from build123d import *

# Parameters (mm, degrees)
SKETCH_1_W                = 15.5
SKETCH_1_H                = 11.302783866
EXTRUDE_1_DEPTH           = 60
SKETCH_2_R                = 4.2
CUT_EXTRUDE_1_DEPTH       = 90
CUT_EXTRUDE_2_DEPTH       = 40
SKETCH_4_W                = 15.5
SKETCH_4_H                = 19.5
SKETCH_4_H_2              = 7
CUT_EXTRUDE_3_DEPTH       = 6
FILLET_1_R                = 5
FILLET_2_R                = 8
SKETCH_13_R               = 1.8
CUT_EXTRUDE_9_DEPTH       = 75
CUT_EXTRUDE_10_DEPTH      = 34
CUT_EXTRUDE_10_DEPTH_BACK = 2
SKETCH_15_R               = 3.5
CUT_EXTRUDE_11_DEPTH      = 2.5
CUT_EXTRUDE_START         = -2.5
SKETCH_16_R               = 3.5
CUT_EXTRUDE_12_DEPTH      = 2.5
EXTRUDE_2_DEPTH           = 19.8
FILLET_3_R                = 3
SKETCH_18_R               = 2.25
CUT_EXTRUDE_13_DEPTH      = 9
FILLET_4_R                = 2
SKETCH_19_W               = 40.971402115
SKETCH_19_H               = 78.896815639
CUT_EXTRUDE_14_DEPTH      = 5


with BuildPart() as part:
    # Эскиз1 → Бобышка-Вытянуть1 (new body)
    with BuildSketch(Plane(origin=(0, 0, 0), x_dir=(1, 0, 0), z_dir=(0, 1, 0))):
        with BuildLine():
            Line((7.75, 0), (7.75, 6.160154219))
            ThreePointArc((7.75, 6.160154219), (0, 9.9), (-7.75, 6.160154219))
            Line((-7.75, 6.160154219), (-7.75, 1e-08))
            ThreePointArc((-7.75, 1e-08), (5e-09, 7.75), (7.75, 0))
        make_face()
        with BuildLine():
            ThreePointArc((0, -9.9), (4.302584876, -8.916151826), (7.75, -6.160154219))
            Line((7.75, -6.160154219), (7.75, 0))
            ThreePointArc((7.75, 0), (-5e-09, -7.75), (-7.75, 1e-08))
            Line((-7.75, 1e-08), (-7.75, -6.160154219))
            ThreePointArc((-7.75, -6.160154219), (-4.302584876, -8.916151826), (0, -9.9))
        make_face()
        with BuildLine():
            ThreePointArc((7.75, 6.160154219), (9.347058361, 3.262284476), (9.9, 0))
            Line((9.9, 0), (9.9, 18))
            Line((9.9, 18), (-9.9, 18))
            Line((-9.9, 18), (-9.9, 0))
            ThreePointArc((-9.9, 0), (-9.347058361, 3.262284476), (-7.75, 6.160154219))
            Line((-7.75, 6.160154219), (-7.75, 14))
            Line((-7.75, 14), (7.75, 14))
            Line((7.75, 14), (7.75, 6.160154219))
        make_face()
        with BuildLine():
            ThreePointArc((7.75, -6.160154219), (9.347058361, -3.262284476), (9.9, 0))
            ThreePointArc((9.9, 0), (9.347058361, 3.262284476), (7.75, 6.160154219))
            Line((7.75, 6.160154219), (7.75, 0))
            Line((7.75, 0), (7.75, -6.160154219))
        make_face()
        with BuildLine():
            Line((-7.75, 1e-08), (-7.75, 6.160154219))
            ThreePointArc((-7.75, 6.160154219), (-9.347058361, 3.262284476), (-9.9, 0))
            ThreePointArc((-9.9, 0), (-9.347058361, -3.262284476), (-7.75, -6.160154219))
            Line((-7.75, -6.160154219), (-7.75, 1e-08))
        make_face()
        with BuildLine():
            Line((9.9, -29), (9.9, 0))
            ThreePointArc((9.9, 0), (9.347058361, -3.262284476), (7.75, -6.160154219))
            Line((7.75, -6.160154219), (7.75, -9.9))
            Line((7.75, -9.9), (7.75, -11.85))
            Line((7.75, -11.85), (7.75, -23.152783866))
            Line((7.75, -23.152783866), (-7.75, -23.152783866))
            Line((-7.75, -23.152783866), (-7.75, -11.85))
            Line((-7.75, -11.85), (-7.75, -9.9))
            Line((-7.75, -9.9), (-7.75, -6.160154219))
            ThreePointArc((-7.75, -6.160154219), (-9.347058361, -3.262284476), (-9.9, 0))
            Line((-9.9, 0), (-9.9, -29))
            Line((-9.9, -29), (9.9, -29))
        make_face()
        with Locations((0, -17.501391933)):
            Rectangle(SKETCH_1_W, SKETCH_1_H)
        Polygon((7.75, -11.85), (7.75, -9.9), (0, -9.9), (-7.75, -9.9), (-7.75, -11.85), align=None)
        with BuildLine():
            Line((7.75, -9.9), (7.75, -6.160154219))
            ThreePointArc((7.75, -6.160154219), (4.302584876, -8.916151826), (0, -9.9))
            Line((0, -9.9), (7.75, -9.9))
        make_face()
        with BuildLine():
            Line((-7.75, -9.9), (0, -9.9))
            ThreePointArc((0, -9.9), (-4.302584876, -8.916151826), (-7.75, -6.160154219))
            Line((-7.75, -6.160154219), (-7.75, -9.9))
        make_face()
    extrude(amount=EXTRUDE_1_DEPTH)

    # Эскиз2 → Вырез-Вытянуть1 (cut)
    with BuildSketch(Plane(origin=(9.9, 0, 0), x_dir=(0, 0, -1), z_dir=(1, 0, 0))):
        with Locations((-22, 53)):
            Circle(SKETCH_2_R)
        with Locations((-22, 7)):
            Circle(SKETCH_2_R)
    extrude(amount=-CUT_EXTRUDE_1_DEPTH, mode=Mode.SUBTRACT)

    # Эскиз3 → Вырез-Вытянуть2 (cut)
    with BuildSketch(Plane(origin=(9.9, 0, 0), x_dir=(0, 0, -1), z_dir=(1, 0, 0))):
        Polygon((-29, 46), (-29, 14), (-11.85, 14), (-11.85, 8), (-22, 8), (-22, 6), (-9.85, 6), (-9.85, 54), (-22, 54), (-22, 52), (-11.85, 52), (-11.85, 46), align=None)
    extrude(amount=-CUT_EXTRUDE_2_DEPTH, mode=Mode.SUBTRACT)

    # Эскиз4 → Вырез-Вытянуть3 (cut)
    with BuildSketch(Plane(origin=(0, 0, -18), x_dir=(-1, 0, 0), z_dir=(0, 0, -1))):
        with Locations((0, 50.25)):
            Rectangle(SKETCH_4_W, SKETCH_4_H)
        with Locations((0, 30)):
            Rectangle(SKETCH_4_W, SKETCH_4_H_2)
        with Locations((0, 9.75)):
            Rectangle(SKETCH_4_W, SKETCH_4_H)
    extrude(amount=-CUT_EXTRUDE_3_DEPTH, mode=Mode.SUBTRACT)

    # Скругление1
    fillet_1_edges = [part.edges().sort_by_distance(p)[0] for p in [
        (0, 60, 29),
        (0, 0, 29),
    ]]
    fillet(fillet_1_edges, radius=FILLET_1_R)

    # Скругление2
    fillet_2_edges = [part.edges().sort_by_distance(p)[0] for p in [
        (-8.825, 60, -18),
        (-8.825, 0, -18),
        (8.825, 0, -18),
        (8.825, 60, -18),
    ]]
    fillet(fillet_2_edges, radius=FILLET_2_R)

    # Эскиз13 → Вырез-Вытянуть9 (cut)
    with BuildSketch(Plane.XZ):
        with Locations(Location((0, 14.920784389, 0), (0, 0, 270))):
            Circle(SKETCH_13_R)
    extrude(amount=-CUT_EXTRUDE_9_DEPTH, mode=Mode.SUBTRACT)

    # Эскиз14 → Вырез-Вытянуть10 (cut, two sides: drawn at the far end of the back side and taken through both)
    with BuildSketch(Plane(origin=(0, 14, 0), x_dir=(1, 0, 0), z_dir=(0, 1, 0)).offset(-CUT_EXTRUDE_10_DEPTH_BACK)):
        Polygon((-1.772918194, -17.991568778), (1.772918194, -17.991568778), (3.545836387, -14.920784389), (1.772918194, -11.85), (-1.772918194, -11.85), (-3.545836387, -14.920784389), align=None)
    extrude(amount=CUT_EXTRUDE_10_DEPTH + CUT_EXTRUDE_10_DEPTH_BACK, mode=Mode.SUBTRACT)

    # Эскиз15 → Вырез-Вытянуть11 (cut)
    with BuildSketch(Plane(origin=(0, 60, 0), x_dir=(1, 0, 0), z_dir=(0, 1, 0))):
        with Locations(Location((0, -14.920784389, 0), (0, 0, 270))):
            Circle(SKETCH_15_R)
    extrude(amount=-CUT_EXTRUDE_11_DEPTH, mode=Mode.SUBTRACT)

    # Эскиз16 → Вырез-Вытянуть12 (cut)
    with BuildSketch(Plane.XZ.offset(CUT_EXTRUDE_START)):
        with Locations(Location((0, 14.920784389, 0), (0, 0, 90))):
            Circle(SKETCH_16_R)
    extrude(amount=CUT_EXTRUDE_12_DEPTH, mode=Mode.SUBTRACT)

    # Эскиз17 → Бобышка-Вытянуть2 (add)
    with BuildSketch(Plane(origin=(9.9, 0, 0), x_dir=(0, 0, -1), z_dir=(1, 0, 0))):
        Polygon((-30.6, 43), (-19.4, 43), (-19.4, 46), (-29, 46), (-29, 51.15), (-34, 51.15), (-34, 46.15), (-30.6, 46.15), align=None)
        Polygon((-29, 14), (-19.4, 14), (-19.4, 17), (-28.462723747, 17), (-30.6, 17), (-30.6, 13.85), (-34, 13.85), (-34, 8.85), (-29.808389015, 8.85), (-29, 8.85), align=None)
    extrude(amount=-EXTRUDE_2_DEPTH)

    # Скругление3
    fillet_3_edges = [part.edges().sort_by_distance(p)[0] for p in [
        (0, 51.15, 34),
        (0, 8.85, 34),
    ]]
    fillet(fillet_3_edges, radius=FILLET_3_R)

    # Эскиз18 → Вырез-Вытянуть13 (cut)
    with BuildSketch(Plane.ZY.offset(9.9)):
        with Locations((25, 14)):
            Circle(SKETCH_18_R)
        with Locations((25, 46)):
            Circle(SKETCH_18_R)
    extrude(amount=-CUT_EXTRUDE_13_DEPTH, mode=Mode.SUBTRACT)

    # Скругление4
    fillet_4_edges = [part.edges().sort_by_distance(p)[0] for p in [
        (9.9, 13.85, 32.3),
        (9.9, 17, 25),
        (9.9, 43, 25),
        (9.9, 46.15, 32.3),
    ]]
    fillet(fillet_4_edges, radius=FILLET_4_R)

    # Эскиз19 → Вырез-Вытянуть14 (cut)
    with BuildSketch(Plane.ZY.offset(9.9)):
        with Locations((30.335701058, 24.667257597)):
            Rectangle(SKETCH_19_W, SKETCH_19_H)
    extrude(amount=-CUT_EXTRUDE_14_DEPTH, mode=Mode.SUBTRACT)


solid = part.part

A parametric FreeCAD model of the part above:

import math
import FreeCAD as App
import Part
import Sketcher
from FreeCAD import Vector
Q = App.Units.Quantity


def edges_at(feature, points):
    """Names of the edges that pass closest to the given points."""
    edges = feature.Shape.Edges
    near = lambda p: min(range(len(edges)), key=lambda i: edges[i].distToShape(Part.Vertex(*p))[0])
    return sorted({f"Edge{near(p) + 1}" for p in points})


def add_polygon(sketch, points):
    """Adds a closed chain of lines whose ends are joined by coincident constraints."""
    first, n = sketch.GeometryCount, len(points)
    for a, b in zip(points, points[1:] + points[:1]):
        sketch.addGeometry(Part.LineSegment(App.Vector(*a, 0), App.Vector(*b, 0)), False)
    for i in range(n):
        sketch.addConstraint(Sketcher.Constraint("Coincident", first + i, 2, first + (i + 1) % n, 1))

doc = App.newDocument("Part")
body = doc.addObject("PartDesign::Body", "Body")

sketch1 = body.newObject("Sketcher::SketchObject", "Sketch")
sketch1.AttachmentSupport = (doc.getObject("XZ_Plane"), [""])
sketch1.MapMode = "FlatFace"
add_polygon(sketch1, [(10, -18), (-10, -18), (-10, 29), (10, 29)])
sketch1.addGeometry(Part.Circle(Vector(0, 0, 0), Vector(0, 0, 1), 8), False)
sketch1.addGeometry(Part.LineSegment(Vector(8, -14, 0), Vector(8, -6, 0)), False)
sketch1.addGeometry(Part.ArcOfCircle(Part.Circle(Vector(0, 0, 0), Vector(0, 0, 1), 10), math.radians(-142), math.radians(-38)), False)
sketch1.addGeometry(Part.LineSegment(Vector(-8, -6, 0), Vector(-8, -14, 0)), False)
sketch1.addGeometry(Part.LineSegment(Vector(-8, -14, 0), Vector(8, -14, 0)), False)
sketch1.addConstraint(Sketcher.Constraint("Coincident", 5, 2, 6, 2))
sketch1.addConstraint(Sketcher.Constraint("Coincident", 6, 1, 7, 1))
sketch1.addConstraint(Sketcher.Constraint("Coincident", 7, 2, 8, 1))
sketch1.addConstraint(Sketcher.Constraint("Coincident", 8, 2, 5, 1))
sketch1.addConstraint(Sketcher.Constraint("Horizontal", 0))
sketch1.addConstraint(Sketcher.Constraint("Vertical", 1))
sketch1.addConstraint(Sketcher.Constraint("Horizontal", 2))
sketch1.addConstraint(Sketcher.Constraint("Vertical", 3))
sketch1.addConstraint(Sketcher.Constraint("Vertical", 5))
sketch1.addConstraint(Sketcher.Constraint("Vertical", 7))
sketch1.addConstraint(Sketcher.Constraint("Horizontal", 8))
sketch1.addConstraint(Sketcher.Constraint("Coincident", 4, 3, -1, 1))
sketch1.addConstraint(Sketcher.Constraint("Coincident", 6, 3, -1, 1))
sketch1.addConstraint(Sketcher.Constraint("Horizontal", 5, 2, 6, 1))
sketch1.addConstraint(Sketcher.Constraint("Diameter", 4, Q("15.5 mm")))
sketch1.addConstraint(Sketcher.Constraint("Radius", 6, Q("9.9 mm")))
sketch1.addConstraint(Sketcher.Constraint("DistanceY", 1, 1, 1, 2, Q("47 mm")))
sketch1.addConstraint(Sketcher.Constraint("DistanceX", 0, 2, 0, 1, Q("19.8 mm")))
sketch1.addConstraint(Sketcher.Constraint("DistanceX", 8, 1, 8, 2, Q("15.5 mm")))
sketch1.addConstraint(Sketcher.Constraint("DistanceY", 0, 2, -1, 1, Q("18 mm")))
sketch1.addConstraint(Sketcher.Constraint("DistanceY", 7, 2, -1, 1, Q("14 mm")))
sketch1.addConstraint(Sketcher.Constraint("DistanceX", 0, 2, -1, 1, Q("9.9 mm")))
pad1 = body.newObject("PartDesign::Pad", "Pad")
pad1.Profile = sketch1
pad1.Length = 60
pad1.Reversed = True

sketch2 = body.newObject("Sketcher::SketchObject", "Sketch001")
sketch2.AttachmentSupport = (doc.getObject("YZ_Plane"), [""])
sketch2.MapMode = "FlatFace"
sketch2.AttachmentOffset = App.Placement(Vector(0, 0, 9.9), App.Rotation())
sketch2.addGeometry(Part.Circle(Vector(53, 22, 0), Vector(0, 0, 1), 4.2), False)
sketch2.addGeometry(Part.Circle(Vector(7, 22, 0), Vector(0, 0, 1), 4.2), False)
sketch2.addConstraint(Sketcher.Constraint("Equal", 0, 1))
sketch2.addConstraint(Sketcher.Constraint("Horizontal", 0, 3, 1, 3))
sketch2.addConstraint(Sketcher.Constraint("Diameter", 0, Q("8.4 mm")))
sketch2.addConstraint(Sketcher.Constraint("DistanceX", -1, 1, 0, 3, Q("53 mm")))
sketch2.addConstraint(Sketcher.Constraint("DistanceY", -1, 1, 0, 3, Q("22 mm")))
sketch2.addConstraint(Sketcher.Constraint("DistanceX", -1, 1, 1, 3, Q("7 mm")))
pocket1 = body.newObject("PartDesign::Pocket", "Pocket")
pocket1.Profile = sketch2
pocket1.Length = 90

sketch3 = body.newObject("Sketcher::SketchObject", "Sketch002")
sketch3.AttachmentSupport = (doc.getObject("YZ_Plane"), [""])
sketch3.MapMode = "FlatFace"
sketch3.AttachmentOffset = App.Placement(Vector(0, 0, 9.9), App.Rotation())
add_polygon(sketch3, [(46, 29), (14, 29), (14, 11.8), (8, 11.8), (8, 22), (6, 22), (6, 9.8), (54, 9.8), (54, 22), (52, 22), (52, 11.8), (46, 11.8)])
sketch3.addConstraint(Sketcher.Constraint("Horizontal", 0))
sketch3.addConstraint(Sketcher.Constraint("Vertical", 1))
sketch3.addConstraint(Sketcher.Constraint("Horizontal", 2))
sketch3.addConstraint(Sketcher.Constraint("Vertical", 3))
sketch3.addConstraint(Sketcher.Constraint("Horizontal", 4))
sketch3.addConstraint(Sketcher.Constraint("Vertical", 5))
sketch3.addConstraint(Sketcher.Constraint("Horizontal", 6))
sketch3.addConstraint(Sketcher.Constraint("Vertical", 7))
sketch3.addConstraint(Sketcher.Constraint("Horizontal", 8))
sketch3.addConstraint(Sketcher.Constraint("Vertical", 9))
sketch3.addConstraint(Sketcher.Constraint("Horizontal", 10))
sketch3.addConstraint(Sketcher.Constraint("Vertical", 11))
sketch3.addConstraint(Sketcher.Constraint("Horizontal", 4, 2, 7, 2))
sketch3.addConstraint(Sketcher.Constraint("Horizontal", 2, 2, 9, 2))
sketch3.addConstraint(Sketcher.Constraint("Equal", 4, 8))
sketch3.addConstraint(Sketcher.Constraint("Equal", 2, 10))
sketch3.addConstraint(Sketcher.Constraint("DistanceX", 0, 2, 0, 1, Q("32 mm")))
sketch3.addConstraint(Sketcher.Constraint("DistanceX", 2, 2, 2, 1, Q("6 mm")))
sketch3.addConstraint(Sketcher.Constraint("DistanceX", 4, 2, 4, 1, Q("2 mm")))
sketch3.addConstraint(Sketcher.Constraint("DistanceX", -1, 1, 0, 2, Q("14 mm")))
sketch3.addConstraint(Sketcher.Constraint("DistanceY", -1, 1, 0, 2, Q("29 mm")))
sketch3.addConstraint(Sketcher.Constraint("DistanceY", -1, 1, 3, 2, Q("22 mm")))
sketch3.addConstraint(Sketcher.Constraint("DistanceY", 5, 2, 2, 2, Q("2 mm")))
sketch3.addConstraint(Sketcher.Constraint("DistanceY", 1, 2, 1, 1, Q("17.15 mm")))
pocket2 = body.newObject("PartDesign::Pocket", "Pocket001")
pocket2.Profile = sketch3
pocket2.Length = 40

sketch4 = body.newObject("Sketcher::SketchObject", "Sketch003")
sketch4.AttachmentSupport = (doc.getObject("XY_Plane"), [""])
sketch4.MapMode = "FlatFace"
sketch4.AttachmentOffset = App.Placement(Vector(0, 0, -18), App.Rotation())
add_polygon(sketch4, [(8, 60), (8, 40), (-8, 40), (-8, 60)])
add_polygon(sketch4, [(8, 34), (8, 26), (-8, 26), (-8, 34)])
add_polygon(sketch4, [(8, 20), (8, 0), (-8, 0), (-8, 20)])
sketch4.addConstraint(Sketcher.Constraint("Vertical", 0))
sketch4.addConstraint(Sketcher.Constraint("Horizontal", 1))
sketch4.addConstraint(Sketcher.Constraint("Vertical", 2))
sketch4.addConstraint(Sketcher.Constraint("Horizontal", 3))
sketch4.addConstraint(Sketcher.Constraint("Vertical", 4))
sketch4.addConstraint(Sketcher.Constraint("Horizontal", 5))
sketch4.addConstraint(Sketcher.Constraint("Vertical", 6))
sketch4.addConstraint(Sketcher.Constraint("Horizontal", 7))
sketch4.addConstraint(Sketcher.Constraint("Vertical", 8))
sketch4.addConstraint(Sketcher.Constraint("Horizontal", 9))
sketch4.addConstraint(Sketcher.Constraint("Vertical", 10))
sketch4.addConstraint(Sketcher.Constraint("Horizontal", 11))
sketch4.addConstraint(Sketcher.Constraint("Symmetric", 8, 2, 9, 2, -1, 1))
sketch4.addConstraint(Sketcher.Constraint("Vertical", 3, 2, 4, 2))
sketch4.addConstraint(Sketcher.Constraint("Vertical", 2, 2, 5, 2))
sketch4.addConstraint(Sketcher.Constraint("Vertical", 7, 2, 8, 2))
sketch4.addConstraint(Sketcher.Constraint("Vertical", 6, 2, 9, 2))
sketch4.addConstraint(Sketcher.Constraint("Equal", 2, 8))
sketch4.addConstraint(Sketcher.Constraint("DistanceY", 4, 2, 4, 1, Q("7 mm")))
sketch4.addConstraint(Sketcher.Constraint("DistanceX", 1, 2, 1, 1, Q("15.5 mm")))
sketch4.addConstraint(Sketcher.Constraint("DistanceY", 0, 2, 0, 1, Q("19.5 mm")))
sketch4.addConstraint(Sketcher.Constraint("DistanceY", -1, 1, 2, 2, Q("60 mm")))
sketch4.addConstraint(Sketcher.Constraint("DistanceY", 4, 2, 0, 2, Q("14 mm")))
pocket3 = body.newObject("PartDesign::Pocket", "Pocket002")
pocket3.Profile = sketch4
pocket3.Length = 6
pocket3.Reversed = True
doc.recompute()

fillet = body.newObject("PartDesign::Fillet", "Fillet")
fillet.Base = (pocket3, edges_at(pocket3, [(0, 60, 29), (0, 0, 29)]))
fillet.Radius = 5
doc.recompute()

fillet2 = body.newObject("PartDesign::Fillet", "Fillet001")
fillet2.Base = (fillet, edges_at(fillet, [
    (-8.825, 60, -18),
    (-8.825, 0, -18),
    (8.825, 0, -18),
    (8.825, 60, -18),
]))
fillet2.Radius = 8

sketch5 = body.newObject("Sketcher::SketchObject", "Sketch004")
sketch5.AttachmentSupport = (doc.getObject("XZ_Plane"), [""])
sketch5.MapMode = "FlatFace"
sketch5.addGeometry(Part.Circle(Vector(0, 14.9, 0), Vector(0, 0, 1), 1.8), False)
sketch5.addConstraint(Sketcher.Constraint("PointOnObject", 0, 3, -2))
sketch5.addConstraint(Sketcher.Constraint("Diameter", 0, Q("3.6 mm")))
sketch5.addConstraint(Sketcher.Constraint("DistanceY", -1, 1, 0, 3, Q("14.920784 mm")))
pocket4 = body.newObject("PartDesign::Pocket", "Pocket003")
pocket4.Profile = sketch5
pocket4.Length = 75

sketch6 = body.newObject("Sketcher::SketchObject", "Sketch005")
sketch6.AttachmentSupport = (doc.getObject("XZ_Plane"), [""])
sketch6.MapMode = "FlatFace"
sketch6.AttachmentOffset = App.Placement(Vector(0, 0, -14), App.Rotation())
add_polygon(sketch6, [(-1.8, 18), (1.8, 18), (3.5, 14.9), (1.8, 11.8), (-1.8, 11.8), (-3.5, 14.9)])
sketch6.addConstraint(Sketcher.Constraint("Horizontal", 0))
sketch6.addConstraint(Sketcher.Constraint("Horizontal", 3))
sketch6.addConstraint(Sketcher.Constraint("Symmetric", 1, 2, 4, 2, -2))
sketch6.addConstraint(Sketcher.Constraint("Parallel", 1, 4))
sketch6.addConstraint(Sketcher.Constraint("Parallel", 2, 5))
sketch6.addConstraint(Sketcher.Constraint("Vertical", 0, 2, 2, 2))
sketch6.addConstraint(Sketcher.Constraint("Vertical", 3, 2, 5, 2))
sketch6.addConstraint(Sketcher.Constraint("Angle", 1, Q("-60 deg")))
sketch6.addConstraint(Sketcher.Constraint("DistanceY", -1, 1, 2, 2, Q("11.85 mm")))
sketch6.addConstraint(Sketcher.Constraint("DistanceX", 0, 1, 0, 2, Q("3.545836 mm")))
sketch6.addConstraint(Sketcher.Constraint("DistanceY", -1, 1, 0, 2, Q("17.991569 mm")))
pocket5 = body.newObject("PartDesign::Pocket", "Pocket004")
pocket5.Profile = sketch6
pocket5.Type = "TwoLengths"
pocket5.Length = 34
pocket5.Length2 = 2

sketch7 = body.newObject("Sketcher::SketchObject", "Sketch006")
sketch7.AttachmentSupport = (doc.getObject("XZ_Plane"), [""])
sketch7.MapMode = "FlatFace"
sketch7.AttachmentOffset = App.Placement(Vector(0, 0, -60), App.Rotation())
sketch7.addGeometry(Part.Circle(Vector(0, 14.9, 0), Vector(0, 0, 1), 3.5), False)
sketch7.addConstraint(Sketcher.Constraint("PointOnObject", 0, 3, -2))
sketch7.addConstraint(Sketcher.Constraint("Diameter", 0, Q("7 mm")))
sketch7.addConstraint(Sketcher.Constraint("DistanceY", -1, 1, 0, 3, Q("14.920784 mm")))
pocket6 = body.newObject("PartDesign::Pocket", "Pocket005")
pocket6.Profile = sketch7
pocket6.Length = 2.5
pocket6.Reversed = True

sketch8 = body.newObject("Sketcher::SketchObject", "Sketch007")
sketch8.AttachmentSupport = (doc.getObject("XZ_Plane"), [""])
sketch8.MapMode = "FlatFace"
sketch8.AttachmentOffset = App.Placement(Vector(0, 0, -2.5), App.Rotation())
sketch8.addGeometry(Part.Circle(Vector(0, 14.9, 0), Vector(0, 0, 1), 3.5), False)
sketch8.addConstraint(Sketcher.Constraint("PointOnObject", 0, 3, -2))
sketch8.addConstraint(Sketcher.Constraint("Diameter", 0, Q("7 mm")))
sketch8.addConstraint(Sketcher.Constraint("DistanceY", -1, 1, 0, 3, Q("14.920784 mm")))
pocket7 = body.newObject("PartDesign::Pocket", "Pocket006")
pocket7.Profile = sketch8
pocket7.Length = 2.5
pocket7.Reversed = True

sketch9 = body.newObject("Sketcher::SketchObject", "Sketch008")
sketch9.AttachmentSupport = (doc.getObject("YZ_Plane"), [""])
sketch9.MapMode = "FlatFace"
sketch9.AttachmentOffset = App.Placement(Vector(0, 0, 9.9), App.Rotation())
add_polygon(sketch9, [(43, 30.6), (43, 19.4), (46, 19.4), (46, 29), (51.1, 29), (51.1, 34), (46.1, 34), (46.1, 30.6)])
add_polygon(sketch9, [(14, 29), (14, 19.4), (17, 19.4), (17, 30.6), (13.8, 30.6), (13.8, 34), (8.8, 34), (8.8, 29)])
sketch9.addConstraint(Sketcher.Constraint("Vertical", 0))
sketch9.addConstraint(Sketcher.Constraint("Horizontal", 1))
sketch9.addConstraint(Sketcher.Constraint("Vertical", 2))
sketch9.addConstraint(Sketcher.Constraint("Horizontal", 3))
sketch9.addConstraint(Sketcher.Constraint("Vertical", 4))
sketch9.addConstraint(Sketcher.Constraint("Horizontal", 5))
sketch9.addConstraint(Sketcher.Constraint("Vertical", 6))
sketch9.addConstraint(Sketcher.Constraint("Horizontal", 7))
sketch9.addConstraint(Sketcher.Constraint("Vertical", 8))
sketch9.addConstraint(Sketcher.Constraint("Horizontal", 9))
sketch9.addConstraint(Sketcher.Constraint("Vertical", 10))
sketch9.addConstraint(Sketcher.Constraint("Horizontal", 11))
sketch9.addConstraint(Sketcher.Constraint("Vertical", 12))
sketch9.addConstraint(Sketcher.Constraint("Horizontal", 13))
sketch9.addConstraint(Sketcher.Constraint("Vertical", 14))
sketch9.addConstraint(Sketcher.Constraint("Horizontal", 15))
sketch9.addConstraint(Sketcher.Constraint("Horizontal", 1, 2, 8, 2))
sketch9.addConstraint(Sketcher.Constraint("Horizontal", 7, 2, 10, 2))
sketch9.addConstraint(Sketcher.Constraint("Horizontal", 5, 2, 12, 2))
sketch9.addConstraint(Sketcher.Constraint("Horizontal", 3, 2, 14, 2))
sketch9.addConstraint(Sketcher.Constraint("Equal", 1, 9))
sketch9.addConstraint(Sketcher.Constraint("Equal", 7, 11))
sketch9.addConstraint(Sketcher.Constraint("Equal", 5, 13))
sketch9.addConstraint(Sketcher.Constraint("Equal", 13, 4))
sketch9.addConstraint(Sketcher.Constraint("DistanceX", 1, 1, 1, 2, Q("3 mm")))
sketch9.addConstraint(Sketcher.Constraint("DistanceX", 5, 2, 5, 1, Q("5 mm")))
sketch9.addConstraint(Sketcher.Constraint("DistanceY", 0, 2, 0, 1, Q("11.2 mm")))
sketch9.addConstraint(Sketcher.Constraint("DistanceY", 2, 1, 2, 2, Q("9.6 mm")))
sketch9.addConstraint(Sketcher.Constraint("DistanceX", -1, 1, 0, 2, Q("43 mm")))
sketch9.addConstraint(Sketcher.Constraint("DistanceY", -1, 1, 2, 2, Q("29 mm")))
sketch9.addConstraint(Sketcher.Constraint("DistanceX", -1, 1, 8, 2, Q("14 mm")))
sketch9.addConstraint(Sketcher.Constraint("DistanceX", 3, 1, 3, 2, Q("5.15 mm")))
pad2 = body.newObject("PartDesign::Pad", "Pad001")
pad2.Profile = sketch9
pad2.Length = 19.8
pad2.Reversed = True
doc.recompute()

fillet3 = body.newObject("PartDesign::Fillet", "Fillet002")
fillet3.Base = (pad2, edges_at(pad2, [(0, 51.15, 34), (0, 8.85, 34)]))
fillet3.Radius = 3

sketch10 = body.newObject("Sketcher::SketchObject", "Sketch009")
sketch10.AttachmentSupport = (doc.getObject("YZ_Plane"), [""])
sketch10.MapMode = "FlatFace"
sketch10.AttachmentOffset = App.Placement(Vector(0, 0, -9.9), App.Rotation())
sketch10.addGeometry(Part.Circle(Vector(14, 25, 0), Vector(0, 0, 1), 2.2), False)
sketch10.addGeometry(Part.Circle(Vector(46, 25, 0), Vector(0, 0, 1), 2.2), False)
sketch10.addConstraint(Sketcher.Constraint("Equal", 0, 1))
sketch10.addConstraint(Sketcher.Constraint("Horizontal", 0, 3, 1, 3))
sketch10.addConstraint(Sketcher.Constraint("Diameter", 0, Q("4.5 mm")))
sketch10.addConstraint(Sketcher.Constraint("DistanceX", -1, 1, 0, 3, Q("14 mm")))
sketch10.addConstraint(Sketcher.Constraint("DistanceY", -1, 1, 0, 3, Q("25 mm")))
sketch10.addConstraint(Sketcher.Constraint("DistanceX", -1, 1, 1, 3, Q("46 mm")))
pocket8 = body.newObject("PartDesign::Pocket", "Pocket007")
pocket8.Profile = sketch10
pocket8.Length = 9
pocket8.Reversed = True
doc.recompute()

fillet4 = body.newObject("PartDesign::Fillet", "Fillet003")
fillet4.Base = (pocket8, edges_at(pocket8, [
    (9.9, 13.85, 32.3),
    (9.9, 17, 25),
    (9.9, 43, 25),
    (9.9, 46.15, 32.3),
]))
fillet4.Radius = 2

sketch11 = body.newObject("Sketcher::SketchObject", "Sketch010")
sketch11.AttachmentSupport = (doc.getObject("YZ_Plane"), [""])
sketch11.MapMode = "FlatFace"
sketch11.AttachmentOffset = App.Placement(Vector(0, 0, -9.9), App.Rotation())
add_polygon(sketch11, [(64, 10), (-15, 10), (-15, 51), (64, 51)])
sketch11.addConstraint(Sketcher.Constraint("Horizontal", 0))
sketch11.addConstraint(Sketcher.Constraint("Vertical", 1))
sketch11.addConstraint(Sketcher.Constraint("Horizontal", 2))
sketch11.addConstraint(Sketcher.Constraint("Vertical", 3))
sketch11.addConstraint(Sketcher.Constraint("DistanceY", -1, 1, 0, 2, Q("9.85 mm")))
sketch11.addConstraint(Sketcher.Constraint("DistanceX", 0, 2, 0, 1, Q("78.896816 mm")))
sketch11.addConstraint(Sketcher.Constraint("DistanceY", 1, 1, 1, 2, Q("40.971402 mm")))
sketch11.addConstraint(Sketcher.Constraint("DistanceX", 0, 2, -1, 1, Q("14.78115 mm")))
pocket9 = body.newObject("PartDesign::Pocket", "Pocket008")
pocket9.Profile = sketch11
pocket9.Length = 5
pocket9.Reversed = True

doc.recompute()
